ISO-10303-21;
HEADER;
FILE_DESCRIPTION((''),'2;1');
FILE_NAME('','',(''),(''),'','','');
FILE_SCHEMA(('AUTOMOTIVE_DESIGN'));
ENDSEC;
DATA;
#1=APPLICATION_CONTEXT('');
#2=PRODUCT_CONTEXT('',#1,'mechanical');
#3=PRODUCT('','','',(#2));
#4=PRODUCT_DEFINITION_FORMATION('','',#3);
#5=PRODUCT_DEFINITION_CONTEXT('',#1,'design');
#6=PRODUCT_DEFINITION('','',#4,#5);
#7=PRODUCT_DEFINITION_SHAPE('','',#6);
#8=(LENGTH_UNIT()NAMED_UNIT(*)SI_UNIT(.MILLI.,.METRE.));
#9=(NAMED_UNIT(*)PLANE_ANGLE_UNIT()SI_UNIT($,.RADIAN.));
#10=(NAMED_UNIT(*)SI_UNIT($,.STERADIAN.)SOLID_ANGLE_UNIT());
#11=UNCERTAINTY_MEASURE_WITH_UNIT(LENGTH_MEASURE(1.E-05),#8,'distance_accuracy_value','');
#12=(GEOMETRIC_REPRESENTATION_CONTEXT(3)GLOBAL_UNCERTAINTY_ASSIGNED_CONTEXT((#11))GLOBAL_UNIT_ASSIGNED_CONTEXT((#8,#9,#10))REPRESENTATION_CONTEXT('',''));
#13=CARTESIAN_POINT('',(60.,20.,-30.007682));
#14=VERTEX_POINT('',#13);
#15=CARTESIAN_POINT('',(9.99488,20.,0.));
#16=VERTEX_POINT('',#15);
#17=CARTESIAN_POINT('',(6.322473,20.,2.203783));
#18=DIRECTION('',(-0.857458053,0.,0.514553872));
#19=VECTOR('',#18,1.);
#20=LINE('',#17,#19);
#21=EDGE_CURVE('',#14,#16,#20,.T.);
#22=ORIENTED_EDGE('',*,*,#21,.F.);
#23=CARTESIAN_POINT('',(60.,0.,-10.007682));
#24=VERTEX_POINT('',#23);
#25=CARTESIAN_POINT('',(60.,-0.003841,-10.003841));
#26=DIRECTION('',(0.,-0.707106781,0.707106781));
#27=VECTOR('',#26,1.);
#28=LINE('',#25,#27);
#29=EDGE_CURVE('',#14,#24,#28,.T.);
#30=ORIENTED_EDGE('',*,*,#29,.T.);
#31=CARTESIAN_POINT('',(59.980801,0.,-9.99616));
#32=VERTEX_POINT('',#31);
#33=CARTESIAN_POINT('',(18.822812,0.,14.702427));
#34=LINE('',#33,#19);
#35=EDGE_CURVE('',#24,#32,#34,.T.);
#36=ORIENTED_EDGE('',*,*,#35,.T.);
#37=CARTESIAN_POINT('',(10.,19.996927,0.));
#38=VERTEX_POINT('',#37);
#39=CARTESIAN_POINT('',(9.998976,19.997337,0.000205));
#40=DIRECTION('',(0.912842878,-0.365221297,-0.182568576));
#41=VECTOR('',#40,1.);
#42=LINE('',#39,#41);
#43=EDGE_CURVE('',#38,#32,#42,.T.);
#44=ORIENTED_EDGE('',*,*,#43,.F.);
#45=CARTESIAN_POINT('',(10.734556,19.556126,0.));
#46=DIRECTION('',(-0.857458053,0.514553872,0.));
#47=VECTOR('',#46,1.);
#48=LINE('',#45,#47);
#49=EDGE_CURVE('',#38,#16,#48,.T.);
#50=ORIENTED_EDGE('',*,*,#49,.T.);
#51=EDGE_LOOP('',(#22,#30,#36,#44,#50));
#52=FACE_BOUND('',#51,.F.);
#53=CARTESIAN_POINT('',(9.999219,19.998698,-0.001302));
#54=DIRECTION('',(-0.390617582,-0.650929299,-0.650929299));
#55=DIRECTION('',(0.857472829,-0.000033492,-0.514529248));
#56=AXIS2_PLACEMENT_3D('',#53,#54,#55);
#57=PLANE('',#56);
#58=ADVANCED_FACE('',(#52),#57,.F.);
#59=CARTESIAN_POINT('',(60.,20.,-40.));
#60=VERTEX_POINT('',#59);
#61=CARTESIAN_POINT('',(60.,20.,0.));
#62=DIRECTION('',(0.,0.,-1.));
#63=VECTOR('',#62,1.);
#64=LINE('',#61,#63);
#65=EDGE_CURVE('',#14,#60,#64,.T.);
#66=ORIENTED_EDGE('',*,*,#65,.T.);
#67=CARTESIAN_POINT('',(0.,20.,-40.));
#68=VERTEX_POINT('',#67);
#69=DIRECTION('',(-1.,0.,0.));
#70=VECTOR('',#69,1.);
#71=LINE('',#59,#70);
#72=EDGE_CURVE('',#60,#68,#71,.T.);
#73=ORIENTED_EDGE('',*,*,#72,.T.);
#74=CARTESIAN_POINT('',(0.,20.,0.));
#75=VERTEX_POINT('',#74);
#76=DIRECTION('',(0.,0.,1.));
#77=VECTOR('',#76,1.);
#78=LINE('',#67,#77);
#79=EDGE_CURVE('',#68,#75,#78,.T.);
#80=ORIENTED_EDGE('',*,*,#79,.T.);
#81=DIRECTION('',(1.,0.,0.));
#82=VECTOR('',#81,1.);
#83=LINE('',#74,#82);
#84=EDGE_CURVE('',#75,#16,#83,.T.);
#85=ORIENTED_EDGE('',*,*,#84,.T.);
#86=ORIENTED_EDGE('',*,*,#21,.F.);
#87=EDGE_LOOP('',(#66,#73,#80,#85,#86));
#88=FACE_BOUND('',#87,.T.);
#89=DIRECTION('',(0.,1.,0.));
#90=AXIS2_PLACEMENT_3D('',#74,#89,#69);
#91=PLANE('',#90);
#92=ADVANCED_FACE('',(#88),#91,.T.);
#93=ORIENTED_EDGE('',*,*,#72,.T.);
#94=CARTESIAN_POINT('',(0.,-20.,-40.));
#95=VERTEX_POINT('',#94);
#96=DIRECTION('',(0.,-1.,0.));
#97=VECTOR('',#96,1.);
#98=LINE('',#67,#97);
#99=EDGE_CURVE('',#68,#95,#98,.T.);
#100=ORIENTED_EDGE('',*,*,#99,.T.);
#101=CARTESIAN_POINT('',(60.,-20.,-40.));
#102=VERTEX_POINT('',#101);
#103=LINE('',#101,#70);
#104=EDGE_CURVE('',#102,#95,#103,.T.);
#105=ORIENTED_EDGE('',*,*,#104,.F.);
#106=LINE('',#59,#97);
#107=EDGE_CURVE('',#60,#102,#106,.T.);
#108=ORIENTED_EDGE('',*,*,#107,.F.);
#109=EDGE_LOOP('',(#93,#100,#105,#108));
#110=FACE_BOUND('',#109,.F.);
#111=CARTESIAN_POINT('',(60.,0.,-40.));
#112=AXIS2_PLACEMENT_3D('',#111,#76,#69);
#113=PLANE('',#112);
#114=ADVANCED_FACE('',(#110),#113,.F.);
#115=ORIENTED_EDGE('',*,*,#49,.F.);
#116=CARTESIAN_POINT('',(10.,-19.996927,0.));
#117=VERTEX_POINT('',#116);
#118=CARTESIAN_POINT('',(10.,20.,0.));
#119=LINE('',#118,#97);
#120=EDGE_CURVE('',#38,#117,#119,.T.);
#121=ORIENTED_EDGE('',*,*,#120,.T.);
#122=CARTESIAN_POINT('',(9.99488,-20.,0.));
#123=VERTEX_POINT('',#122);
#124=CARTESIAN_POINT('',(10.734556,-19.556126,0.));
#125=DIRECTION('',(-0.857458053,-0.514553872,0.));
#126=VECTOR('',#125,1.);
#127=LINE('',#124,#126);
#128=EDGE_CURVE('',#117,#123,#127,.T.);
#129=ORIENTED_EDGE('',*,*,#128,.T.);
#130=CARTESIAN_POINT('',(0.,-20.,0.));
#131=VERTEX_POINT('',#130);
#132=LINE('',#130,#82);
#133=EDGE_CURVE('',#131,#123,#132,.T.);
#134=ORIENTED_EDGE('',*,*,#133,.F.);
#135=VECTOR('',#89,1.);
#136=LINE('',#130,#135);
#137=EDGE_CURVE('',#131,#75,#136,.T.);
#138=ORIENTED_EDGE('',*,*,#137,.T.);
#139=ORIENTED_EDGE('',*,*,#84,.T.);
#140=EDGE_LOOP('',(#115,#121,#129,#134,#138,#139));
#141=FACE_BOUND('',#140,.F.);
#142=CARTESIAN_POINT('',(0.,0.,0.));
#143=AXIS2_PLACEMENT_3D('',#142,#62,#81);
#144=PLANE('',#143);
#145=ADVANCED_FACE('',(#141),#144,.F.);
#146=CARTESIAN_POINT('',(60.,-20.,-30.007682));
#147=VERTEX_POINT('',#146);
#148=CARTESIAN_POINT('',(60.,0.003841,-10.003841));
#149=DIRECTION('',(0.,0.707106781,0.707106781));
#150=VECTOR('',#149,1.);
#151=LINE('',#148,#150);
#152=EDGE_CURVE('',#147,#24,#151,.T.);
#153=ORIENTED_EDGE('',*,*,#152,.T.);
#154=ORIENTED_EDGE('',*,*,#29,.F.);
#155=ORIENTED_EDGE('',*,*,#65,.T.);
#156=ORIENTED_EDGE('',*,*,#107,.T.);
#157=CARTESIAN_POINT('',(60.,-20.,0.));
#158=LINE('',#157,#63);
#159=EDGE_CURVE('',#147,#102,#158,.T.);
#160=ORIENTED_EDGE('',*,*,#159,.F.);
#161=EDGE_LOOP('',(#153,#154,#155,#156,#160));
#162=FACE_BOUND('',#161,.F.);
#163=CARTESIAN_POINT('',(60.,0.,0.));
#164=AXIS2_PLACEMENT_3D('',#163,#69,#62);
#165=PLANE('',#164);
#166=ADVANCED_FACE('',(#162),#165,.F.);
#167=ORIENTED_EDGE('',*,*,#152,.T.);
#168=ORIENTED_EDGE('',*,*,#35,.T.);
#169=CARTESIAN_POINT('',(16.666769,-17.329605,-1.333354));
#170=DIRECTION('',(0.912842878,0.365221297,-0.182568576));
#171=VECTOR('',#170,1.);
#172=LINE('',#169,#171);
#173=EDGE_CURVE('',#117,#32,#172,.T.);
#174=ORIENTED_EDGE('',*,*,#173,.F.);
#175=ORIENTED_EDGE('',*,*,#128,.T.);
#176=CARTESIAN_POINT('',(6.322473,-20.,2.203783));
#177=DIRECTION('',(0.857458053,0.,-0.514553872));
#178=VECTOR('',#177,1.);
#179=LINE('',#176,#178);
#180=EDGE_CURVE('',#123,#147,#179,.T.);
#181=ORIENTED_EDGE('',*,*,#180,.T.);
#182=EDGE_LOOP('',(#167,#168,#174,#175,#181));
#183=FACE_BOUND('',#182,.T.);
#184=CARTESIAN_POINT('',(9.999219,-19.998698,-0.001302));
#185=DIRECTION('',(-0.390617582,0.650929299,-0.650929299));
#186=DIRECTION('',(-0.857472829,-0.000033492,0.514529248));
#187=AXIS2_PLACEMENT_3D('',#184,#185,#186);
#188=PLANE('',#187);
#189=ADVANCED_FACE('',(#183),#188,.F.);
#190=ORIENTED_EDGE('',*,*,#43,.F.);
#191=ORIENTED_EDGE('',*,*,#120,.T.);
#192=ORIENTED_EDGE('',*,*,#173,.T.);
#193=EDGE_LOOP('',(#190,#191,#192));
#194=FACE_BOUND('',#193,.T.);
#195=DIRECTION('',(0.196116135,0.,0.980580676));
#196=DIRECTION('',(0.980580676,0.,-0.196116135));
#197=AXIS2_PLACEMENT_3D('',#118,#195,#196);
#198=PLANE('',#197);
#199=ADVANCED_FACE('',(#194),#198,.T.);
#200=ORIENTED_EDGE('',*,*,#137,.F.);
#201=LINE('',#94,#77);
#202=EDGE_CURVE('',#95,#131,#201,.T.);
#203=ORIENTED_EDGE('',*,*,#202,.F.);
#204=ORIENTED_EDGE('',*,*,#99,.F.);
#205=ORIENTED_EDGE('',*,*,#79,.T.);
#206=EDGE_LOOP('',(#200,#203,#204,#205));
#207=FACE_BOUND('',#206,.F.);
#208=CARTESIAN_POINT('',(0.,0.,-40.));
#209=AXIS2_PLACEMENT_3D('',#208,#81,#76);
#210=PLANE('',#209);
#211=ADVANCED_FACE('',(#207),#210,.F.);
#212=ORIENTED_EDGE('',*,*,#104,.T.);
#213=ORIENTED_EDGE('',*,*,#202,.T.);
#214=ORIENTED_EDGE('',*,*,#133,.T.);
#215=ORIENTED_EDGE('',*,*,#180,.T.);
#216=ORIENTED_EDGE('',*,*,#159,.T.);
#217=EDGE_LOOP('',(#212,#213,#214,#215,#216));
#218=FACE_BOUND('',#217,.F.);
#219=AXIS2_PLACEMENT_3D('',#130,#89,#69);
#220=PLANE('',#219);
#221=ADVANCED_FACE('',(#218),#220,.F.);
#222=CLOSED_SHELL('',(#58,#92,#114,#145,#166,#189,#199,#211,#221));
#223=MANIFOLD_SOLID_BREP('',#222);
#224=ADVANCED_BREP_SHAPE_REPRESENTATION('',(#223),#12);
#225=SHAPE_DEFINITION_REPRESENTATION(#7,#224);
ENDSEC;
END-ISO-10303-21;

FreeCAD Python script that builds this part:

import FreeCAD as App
import Part
import Sketcher

V = App.Vector


def add_polygon(sketch, points):
    """Adds a closed chain of lines whose ends are joined by coincident constraints."""
    first, n = sketch.GeometryCount, len(points)
    for a, b in zip(points, points[1:] + points[:1]):
        sketch.addGeometry(Part.LineSegment(App.Vector(*a, 0), App.Vector(*b, 0)), False)
    for i in range(n):
        sketch.addConstraint(Sketcher.Constraint("Coincident", first + i, 2, first + (i + 1) % n, 1))

doc = App.newDocument("Part")
params = doc.addObject("Spreadsheet::Sheet", "Params")
for row, (alias, value) in enumerate([
    ("sketch1_width", "60 mm"),
    ("sketch1_height", "40 mm"),
    ("pad1_length", "40 mm"),
    ("sketch2_height", "10 mm"),
    ("sketch2_width", "50 mm"),
    ("pocket1_length", "40 mm"),
    ("pocket2_length", "40 mm"),
], start=1):
    params.set(f"A{row}", alias)
    params.set(f"B{row}", "=" + value)
    params.setAlias(f"B{row}", alias)

body = doc.addObject("PartDesign::Body", "Body")

sketch1 = body.newObject("Sketcher::SketchObject", "Sketch")
sketch1.AttachmentSupport = (doc.getObject("XZ_Plane"), [""])
sketch1.MapMode = "FlatFace"
add_polygon(sketch1, [(0, -40), (0, 0), (60, 0), (60, -40)])
sketch1.addConstraint([
    Sketcher.Constraint("Vertical", 0),
    Sketcher.Constraint("Horizontal", 1),
    Sketcher.Constraint("Vertical", 2),
    Sketcher.Constraint("Horizontal", 3),
    Sketcher.Constraint("Coincident", 0, 2, -1, 1),
    Sketcher.Constraint("DistanceX", 1, 1, 1, 2, 60.0),
    Sketcher.Constraint("DistanceY", 0, 1, 0, 2, 40.0),
])
sketch1.setExpression("Constraints[9]", "Params.sketch1_width")
sketch1.setExpression("Constraints[10]", "Params.sketch1_height")
pad1 = body.newObject("PartDesign::Pad", "Pad")
pad1.Profile = sketch1
pad1.setExpression("Length", "Params.pad1_length")
pad1.Midplane = True

sketch2 = body.newObject("Sketcher::SketchObject", "Sketch001")
sketch2.AttachmentSupport = (doc.getObject("XZ_Plane"), [""])
sketch2.MapMode = "FlatFace"
sketch2.AttachmentOffset = App.Placement(V(0, 0, -20), App.Rotation())
add_polygon(sketch2, [(60, -10), (10, 0), (60, 0)])
sketch2.addConstraint([
    Sketcher.Constraint("Horizontal", 1),
    Sketcher.Constraint("Vertical", 2),
    Sketcher.Constraint("PointOnObject", 0, 2, -1),
    Sketcher.Constraint("DistanceY", 2, 2, 2, 1, 10.0),
    Sketcher.Constraint("DistanceX", -1, 1, 0, 2, 10.0),
    Sketcher.Constraint("DistanceX", 1, 1, 1, 2, 50.0),
])
sketch2.setExpression("Constraints[6]", "Params.sketch2_height")
sketch2.setExpression("Constraints[8]", "Params.sketch2_width")
pocket1 = body.newObject("PartDesign::Pocket", "Pocket")
pocket1.Profile = sketch2
pocket1.setExpression("Length", "Params.pocket1_length")
pocket1.Reversed = True

sketch3 = body.newObject("Sketcher::SketchObject", "Sketch002")
sketch3.Placement = App.Placement(V(10, 20, 0), App.Rotation(V(0.857472829, -0.000033492, -0.514529248), V(0.334900362, -0.759138358, 0.55816727), V(-0.390617582, -0.650929299, -0.650929299), "ZXY"))
add_polygon(sketch3, [(-15, 29), (-15, -12), (94, -12), (94, 29)])
sketch3.addConstraint([
    Sketcher.Constraint("Vertical", 0),
    Sketcher.Constraint("Horizontal", 1),
    Sketcher.Constraint("Vertical", 2),
    Sketcher.Constraint("Horizontal", 3),
    Sketcher.Constraint("DistanceX", 1, 1, 1, 2, 108.8713),
    Sketcher.Constraint("DistanceY", 0, 2, 0, 1, 41.1384),
    Sketcher.Constraint("DistanceX", -1, 1, 1, 2, 93.717),
    Sketcher.Constraint("DistanceY", 0, 2, -1, 1, 12.3218),
])
pocket2 = body.newObject("PartDesign::Pocket", "Pocket001")
pocket2.Profile = sketch3
pocket2.setExpression("Length", "Params.pocket2_length")
doc.recompute()

mirrored = body.newObject("PartDesign::Mirrored", "Mirrored")
mirrored.Originals = [pocket2]
mirrored.MirrorPlane = (doc.getObject("XZ_Plane"), [""])
body.Tip = mirrored

doc.recompute()
